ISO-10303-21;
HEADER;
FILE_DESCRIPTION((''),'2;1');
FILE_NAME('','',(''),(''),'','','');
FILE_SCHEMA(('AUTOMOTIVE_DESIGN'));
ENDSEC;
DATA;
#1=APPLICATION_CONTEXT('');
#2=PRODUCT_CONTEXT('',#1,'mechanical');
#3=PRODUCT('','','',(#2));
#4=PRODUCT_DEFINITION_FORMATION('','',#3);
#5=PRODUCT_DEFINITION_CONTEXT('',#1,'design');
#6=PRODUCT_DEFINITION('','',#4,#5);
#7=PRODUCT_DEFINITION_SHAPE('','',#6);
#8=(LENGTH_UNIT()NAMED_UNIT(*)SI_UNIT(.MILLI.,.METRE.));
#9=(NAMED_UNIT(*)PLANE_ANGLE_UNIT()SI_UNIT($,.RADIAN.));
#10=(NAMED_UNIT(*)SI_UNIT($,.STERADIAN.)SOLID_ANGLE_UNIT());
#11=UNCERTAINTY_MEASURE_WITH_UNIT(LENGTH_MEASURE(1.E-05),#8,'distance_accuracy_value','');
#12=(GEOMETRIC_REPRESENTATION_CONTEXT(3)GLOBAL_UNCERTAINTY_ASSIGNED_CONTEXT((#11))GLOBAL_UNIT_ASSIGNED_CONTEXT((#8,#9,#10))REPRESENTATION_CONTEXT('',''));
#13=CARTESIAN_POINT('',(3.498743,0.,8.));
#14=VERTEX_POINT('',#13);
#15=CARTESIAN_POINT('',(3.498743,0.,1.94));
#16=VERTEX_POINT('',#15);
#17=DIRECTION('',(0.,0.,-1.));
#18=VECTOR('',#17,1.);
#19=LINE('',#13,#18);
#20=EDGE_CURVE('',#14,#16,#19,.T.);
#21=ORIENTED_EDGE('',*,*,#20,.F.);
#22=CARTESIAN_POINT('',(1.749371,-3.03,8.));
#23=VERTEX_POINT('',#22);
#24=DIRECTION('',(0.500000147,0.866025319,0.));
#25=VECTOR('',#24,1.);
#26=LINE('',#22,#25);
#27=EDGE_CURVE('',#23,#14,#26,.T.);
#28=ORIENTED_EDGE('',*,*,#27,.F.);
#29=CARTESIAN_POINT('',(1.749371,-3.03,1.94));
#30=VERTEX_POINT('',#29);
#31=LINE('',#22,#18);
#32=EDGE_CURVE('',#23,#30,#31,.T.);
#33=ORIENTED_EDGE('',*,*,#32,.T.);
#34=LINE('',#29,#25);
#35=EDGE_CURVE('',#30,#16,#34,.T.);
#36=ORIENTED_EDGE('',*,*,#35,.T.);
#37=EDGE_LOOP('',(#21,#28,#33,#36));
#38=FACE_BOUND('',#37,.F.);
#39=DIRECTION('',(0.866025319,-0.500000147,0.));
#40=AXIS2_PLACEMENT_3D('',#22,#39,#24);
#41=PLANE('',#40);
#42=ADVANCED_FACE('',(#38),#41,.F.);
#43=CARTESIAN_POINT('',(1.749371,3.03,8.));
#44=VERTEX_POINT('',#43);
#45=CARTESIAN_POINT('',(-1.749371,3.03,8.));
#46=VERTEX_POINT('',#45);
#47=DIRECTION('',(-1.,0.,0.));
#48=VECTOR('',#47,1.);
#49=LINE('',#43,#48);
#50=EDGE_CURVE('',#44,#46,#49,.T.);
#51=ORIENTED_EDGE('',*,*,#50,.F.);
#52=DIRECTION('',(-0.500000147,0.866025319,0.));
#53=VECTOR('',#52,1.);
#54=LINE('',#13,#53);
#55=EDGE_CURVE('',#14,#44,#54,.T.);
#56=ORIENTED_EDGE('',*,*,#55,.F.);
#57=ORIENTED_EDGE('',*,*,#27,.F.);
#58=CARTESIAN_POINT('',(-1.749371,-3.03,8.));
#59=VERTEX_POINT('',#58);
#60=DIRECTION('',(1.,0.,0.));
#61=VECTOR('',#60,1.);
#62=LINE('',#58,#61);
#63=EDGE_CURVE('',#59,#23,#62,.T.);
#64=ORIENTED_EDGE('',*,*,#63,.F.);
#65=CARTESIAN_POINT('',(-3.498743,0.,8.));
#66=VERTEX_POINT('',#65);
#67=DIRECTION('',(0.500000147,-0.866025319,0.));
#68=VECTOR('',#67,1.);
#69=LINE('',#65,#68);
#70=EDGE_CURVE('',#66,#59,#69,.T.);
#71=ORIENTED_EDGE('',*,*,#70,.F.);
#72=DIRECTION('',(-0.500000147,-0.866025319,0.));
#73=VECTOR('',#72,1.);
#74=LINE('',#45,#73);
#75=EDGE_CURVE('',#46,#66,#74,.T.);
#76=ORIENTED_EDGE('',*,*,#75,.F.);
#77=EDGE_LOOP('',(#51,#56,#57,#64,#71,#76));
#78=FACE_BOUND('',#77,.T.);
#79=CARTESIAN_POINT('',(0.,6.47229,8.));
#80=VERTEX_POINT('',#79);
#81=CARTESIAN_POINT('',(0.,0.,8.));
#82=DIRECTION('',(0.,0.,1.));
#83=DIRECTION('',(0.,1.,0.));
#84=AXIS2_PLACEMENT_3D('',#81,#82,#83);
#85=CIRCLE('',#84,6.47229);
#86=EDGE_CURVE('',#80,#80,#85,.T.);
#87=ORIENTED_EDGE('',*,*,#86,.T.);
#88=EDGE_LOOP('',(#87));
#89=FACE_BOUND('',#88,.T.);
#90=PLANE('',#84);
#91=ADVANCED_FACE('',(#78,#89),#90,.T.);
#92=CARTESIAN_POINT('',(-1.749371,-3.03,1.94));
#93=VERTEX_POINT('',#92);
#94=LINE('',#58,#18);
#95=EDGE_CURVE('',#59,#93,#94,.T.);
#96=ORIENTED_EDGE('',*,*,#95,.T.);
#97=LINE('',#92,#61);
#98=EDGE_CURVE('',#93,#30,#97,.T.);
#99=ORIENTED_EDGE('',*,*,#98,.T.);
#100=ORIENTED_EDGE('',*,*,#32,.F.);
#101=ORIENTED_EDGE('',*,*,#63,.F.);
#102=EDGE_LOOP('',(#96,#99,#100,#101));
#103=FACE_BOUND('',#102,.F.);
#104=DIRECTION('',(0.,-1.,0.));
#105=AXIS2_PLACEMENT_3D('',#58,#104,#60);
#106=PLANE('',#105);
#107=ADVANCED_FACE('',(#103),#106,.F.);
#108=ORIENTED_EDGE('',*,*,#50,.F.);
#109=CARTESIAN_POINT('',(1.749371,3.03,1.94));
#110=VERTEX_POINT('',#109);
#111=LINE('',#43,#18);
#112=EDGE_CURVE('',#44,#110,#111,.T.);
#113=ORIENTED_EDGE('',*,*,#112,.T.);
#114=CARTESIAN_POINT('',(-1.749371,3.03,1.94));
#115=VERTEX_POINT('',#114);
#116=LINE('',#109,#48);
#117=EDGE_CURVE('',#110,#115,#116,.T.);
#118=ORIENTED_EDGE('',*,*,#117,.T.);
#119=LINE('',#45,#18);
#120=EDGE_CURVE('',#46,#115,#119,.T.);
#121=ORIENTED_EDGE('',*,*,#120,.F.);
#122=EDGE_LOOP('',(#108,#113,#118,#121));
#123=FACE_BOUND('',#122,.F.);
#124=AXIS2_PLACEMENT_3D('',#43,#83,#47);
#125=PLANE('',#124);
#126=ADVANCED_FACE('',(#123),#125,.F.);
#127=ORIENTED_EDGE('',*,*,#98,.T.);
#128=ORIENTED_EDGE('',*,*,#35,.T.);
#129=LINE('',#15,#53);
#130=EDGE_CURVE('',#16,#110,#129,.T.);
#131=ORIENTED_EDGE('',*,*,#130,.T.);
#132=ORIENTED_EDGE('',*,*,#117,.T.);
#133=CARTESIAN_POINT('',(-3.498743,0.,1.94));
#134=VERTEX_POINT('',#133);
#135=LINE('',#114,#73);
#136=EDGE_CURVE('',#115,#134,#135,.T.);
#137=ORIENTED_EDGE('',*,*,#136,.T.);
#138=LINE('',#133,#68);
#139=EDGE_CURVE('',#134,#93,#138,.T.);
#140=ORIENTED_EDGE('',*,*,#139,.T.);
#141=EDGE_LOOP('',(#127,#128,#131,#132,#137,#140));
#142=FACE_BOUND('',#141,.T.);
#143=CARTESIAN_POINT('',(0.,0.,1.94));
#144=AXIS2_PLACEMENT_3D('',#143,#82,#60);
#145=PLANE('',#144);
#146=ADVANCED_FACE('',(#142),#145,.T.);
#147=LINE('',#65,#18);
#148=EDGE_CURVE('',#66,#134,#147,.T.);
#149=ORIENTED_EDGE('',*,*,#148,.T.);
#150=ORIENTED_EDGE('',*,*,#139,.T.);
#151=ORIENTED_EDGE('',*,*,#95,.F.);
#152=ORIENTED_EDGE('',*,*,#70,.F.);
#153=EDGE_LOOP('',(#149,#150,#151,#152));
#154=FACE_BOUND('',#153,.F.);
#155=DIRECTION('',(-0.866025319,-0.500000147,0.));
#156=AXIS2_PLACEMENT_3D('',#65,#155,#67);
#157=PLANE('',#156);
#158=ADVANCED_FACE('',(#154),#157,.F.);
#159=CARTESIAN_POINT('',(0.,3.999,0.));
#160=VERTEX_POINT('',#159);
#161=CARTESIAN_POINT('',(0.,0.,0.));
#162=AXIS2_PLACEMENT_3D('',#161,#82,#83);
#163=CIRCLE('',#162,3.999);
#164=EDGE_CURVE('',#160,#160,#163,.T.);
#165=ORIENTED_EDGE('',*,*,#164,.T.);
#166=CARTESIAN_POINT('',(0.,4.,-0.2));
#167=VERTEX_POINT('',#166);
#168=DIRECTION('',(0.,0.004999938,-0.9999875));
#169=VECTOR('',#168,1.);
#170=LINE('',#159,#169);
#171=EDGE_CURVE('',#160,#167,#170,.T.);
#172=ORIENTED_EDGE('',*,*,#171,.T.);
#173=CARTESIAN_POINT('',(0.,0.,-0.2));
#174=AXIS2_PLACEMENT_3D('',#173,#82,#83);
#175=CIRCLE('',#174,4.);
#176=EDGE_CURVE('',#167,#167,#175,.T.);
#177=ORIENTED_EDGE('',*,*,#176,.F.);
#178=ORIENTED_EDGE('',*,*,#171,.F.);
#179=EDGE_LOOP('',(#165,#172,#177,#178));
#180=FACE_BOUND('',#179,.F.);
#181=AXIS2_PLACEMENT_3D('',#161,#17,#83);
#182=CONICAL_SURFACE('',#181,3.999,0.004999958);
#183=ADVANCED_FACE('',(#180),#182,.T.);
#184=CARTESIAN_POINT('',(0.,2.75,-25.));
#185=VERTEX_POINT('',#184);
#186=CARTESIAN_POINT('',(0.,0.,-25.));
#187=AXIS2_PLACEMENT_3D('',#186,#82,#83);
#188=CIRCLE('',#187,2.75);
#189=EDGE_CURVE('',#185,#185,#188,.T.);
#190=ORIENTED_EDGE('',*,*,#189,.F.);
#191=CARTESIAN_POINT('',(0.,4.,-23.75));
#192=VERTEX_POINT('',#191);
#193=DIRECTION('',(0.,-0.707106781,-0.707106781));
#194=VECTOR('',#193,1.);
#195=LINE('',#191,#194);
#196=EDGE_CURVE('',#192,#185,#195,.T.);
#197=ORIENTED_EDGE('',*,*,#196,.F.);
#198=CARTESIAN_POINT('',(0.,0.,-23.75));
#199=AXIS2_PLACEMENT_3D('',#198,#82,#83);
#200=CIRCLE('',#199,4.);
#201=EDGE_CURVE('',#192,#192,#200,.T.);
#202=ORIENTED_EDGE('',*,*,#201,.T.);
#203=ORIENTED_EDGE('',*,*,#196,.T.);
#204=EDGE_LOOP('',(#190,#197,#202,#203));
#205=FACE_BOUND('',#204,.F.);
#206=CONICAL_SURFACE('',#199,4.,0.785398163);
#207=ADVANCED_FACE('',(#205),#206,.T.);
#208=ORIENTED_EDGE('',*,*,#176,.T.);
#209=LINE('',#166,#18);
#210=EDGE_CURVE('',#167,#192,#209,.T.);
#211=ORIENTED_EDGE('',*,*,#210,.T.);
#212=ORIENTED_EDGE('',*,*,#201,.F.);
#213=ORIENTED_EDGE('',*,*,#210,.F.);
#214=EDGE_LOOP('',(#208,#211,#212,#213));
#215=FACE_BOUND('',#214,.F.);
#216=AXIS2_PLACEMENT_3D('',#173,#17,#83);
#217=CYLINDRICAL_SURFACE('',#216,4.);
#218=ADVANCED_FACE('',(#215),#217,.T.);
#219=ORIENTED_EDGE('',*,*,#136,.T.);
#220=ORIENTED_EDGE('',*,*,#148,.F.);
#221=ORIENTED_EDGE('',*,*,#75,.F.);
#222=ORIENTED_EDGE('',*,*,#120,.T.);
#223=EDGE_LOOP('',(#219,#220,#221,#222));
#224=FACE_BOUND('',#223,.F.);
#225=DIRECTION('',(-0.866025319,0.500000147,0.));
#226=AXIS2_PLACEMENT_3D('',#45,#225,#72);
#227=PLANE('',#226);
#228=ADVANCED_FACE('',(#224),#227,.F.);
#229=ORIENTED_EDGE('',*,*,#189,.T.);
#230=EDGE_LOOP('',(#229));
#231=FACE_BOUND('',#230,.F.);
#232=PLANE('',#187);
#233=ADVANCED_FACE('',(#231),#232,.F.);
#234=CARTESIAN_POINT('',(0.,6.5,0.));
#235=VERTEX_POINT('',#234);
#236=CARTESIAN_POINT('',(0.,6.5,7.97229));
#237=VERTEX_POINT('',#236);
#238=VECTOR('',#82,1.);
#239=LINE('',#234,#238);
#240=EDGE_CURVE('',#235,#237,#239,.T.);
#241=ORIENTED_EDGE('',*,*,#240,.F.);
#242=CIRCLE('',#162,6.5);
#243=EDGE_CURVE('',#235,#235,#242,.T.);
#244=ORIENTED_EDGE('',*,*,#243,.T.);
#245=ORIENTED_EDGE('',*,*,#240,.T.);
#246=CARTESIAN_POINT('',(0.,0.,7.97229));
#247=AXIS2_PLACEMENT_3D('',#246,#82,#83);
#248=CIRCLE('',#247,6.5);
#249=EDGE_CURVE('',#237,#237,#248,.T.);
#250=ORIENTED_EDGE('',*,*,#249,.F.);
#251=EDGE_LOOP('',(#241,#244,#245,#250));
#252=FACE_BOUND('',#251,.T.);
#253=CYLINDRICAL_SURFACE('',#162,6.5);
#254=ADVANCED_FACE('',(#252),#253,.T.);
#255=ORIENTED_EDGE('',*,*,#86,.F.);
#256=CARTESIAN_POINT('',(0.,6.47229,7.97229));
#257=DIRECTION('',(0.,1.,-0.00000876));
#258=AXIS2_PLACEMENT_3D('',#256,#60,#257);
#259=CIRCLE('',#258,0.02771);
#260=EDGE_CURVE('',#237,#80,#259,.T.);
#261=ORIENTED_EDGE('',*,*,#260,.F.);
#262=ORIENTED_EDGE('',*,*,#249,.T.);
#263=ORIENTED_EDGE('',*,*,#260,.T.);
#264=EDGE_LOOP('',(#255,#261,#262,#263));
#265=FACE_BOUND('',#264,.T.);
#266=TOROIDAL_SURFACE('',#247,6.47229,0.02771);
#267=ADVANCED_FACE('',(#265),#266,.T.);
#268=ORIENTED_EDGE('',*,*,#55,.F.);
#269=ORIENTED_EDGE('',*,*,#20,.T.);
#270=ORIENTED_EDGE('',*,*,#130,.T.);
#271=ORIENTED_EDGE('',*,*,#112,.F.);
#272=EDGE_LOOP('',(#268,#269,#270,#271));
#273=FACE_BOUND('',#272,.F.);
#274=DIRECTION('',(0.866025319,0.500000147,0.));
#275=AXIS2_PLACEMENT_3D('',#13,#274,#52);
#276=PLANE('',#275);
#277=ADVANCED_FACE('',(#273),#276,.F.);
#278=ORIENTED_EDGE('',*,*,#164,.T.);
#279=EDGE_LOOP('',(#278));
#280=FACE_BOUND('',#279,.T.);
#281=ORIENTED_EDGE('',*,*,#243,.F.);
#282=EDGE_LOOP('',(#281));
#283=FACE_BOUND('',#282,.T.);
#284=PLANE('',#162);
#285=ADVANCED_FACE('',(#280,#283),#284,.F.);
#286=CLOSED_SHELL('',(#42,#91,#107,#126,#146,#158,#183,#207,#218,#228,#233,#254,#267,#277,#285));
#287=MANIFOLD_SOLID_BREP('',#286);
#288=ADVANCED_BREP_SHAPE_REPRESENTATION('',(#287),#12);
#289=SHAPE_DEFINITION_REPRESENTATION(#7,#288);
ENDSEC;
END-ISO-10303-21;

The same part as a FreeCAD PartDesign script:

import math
import FreeCAD as App
import Part
import Sketcher
from FreeCAD import Vector
Q = App.Units.Quantity


def add_polygon(sketch, points):
    """Adds a closed chain of lines whose ends are joined by coincident constraints."""
    first, n = sketch.GeometryCount, len(points)
    for a, b in zip(points, points[1:] + points[:1]):
        sketch.addGeometry(Part.LineSegment(App.Vector(*a, 0), App.Vector(*b, 0)), False)
    for i in range(n):
        sketch.addConstraint(Sketcher.Constraint("Coincident", first + i, 2, first + (i + 1) % n, 1))

doc = App.newDocument("Part")
body = doc.addObject("PartDesign::Body", "Body")

sketch1 = body.newObject("Sketcher::SketchObject", "Sketch")
sketch1.AttachmentSupport = (doc.getObject("YZ_Plane"), [""])
sketch1.MapMode = "FlatFace"
sketch1.addGeometry([
    Part.LineSegment(Vector(3.999, 0, 0), Vector(6.5, 0, 0)),
    Part.LineSegment(Vector(6.5, 0, 0), Vector(6.5, 7.972, 0)),
    Part.ArcOfCircle(Part.Circle(Vector(6.472, 7.972, 0), Vector(0, 0, 1), 0.028), math.radians(0), math.radians(90)),
    Part.LineSegment(Vector(6.472, 8, 0), Vector(0, 8, 0)),
    Part.LineSegment(Vector(0, 8, 0), Vector(0, -25, 0)),
    Part.LineSegment(Vector(0, -25, 0), Vector(2.75, -25, 0)),
    Part.LineSegment(Vector(2.75, -25, 0), Vector(4, -23.75, 0)),
    Part.LineSegment(Vector(4, -23.75, 0), Vector(4, -0.2, 0)),
    Part.LineSegment(Vector(4, -0.2, 0), Vector(3.999, 0, 0)),
], False)
sketch1.addConstraint([
    Sketcher.Constraint("Coincident", 0, 2, 1, 1),
    Sketcher.Constraint("Coincident", 1, 2, 2, 1),
    Sketcher.Constraint("Coincident", 2, 2, 3, 1),
    Sketcher.Constraint("Coincident", 3, 2, 4, 1),
    Sketcher.Constraint("Coincident", 4, 2, 5, 1),
    Sketcher.Constraint("Coincident", 5, 2, 6, 1),
    Sketcher.Constraint("Coincident", 6, 2, 7, 1),
    Sketcher.Constraint("Coincident", 7, 2, 8, 1),
    Sketcher.Constraint("Coincident", 8, 2, 0, 1),
    Sketcher.Constraint("Horizontal", 0),
    Sketcher.Constraint("Vertical", 1),
    Sketcher.Constraint("Horizontal", 3),
    Sketcher.Constraint("Vertical", 4),
    Sketcher.Constraint("Horizontal", 5),
    Sketcher.Constraint("Vertical", 7),
    Sketcher.Constraint("PointOnObject", 0, 2, -1),
    Sketcher.Constraint("PointOnObject", 3, 2, -2),
    Sketcher.Constraint("Horizontal", 2, 3, 1, 2),
    Sketcher.Constraint("DistanceY", 4, 2, 4, 1, 33.0),
    Sketcher.Constraint("Angle", 6, Q("45 deg")),
    Sketcher.Constraint("DistanceY", -1, 1, 2, 2, 8.0),
    Sketcher.Constraint("DistanceX", -1, 1, 6, 2, 4.0),
    Sketcher.Constraint("DistanceX", 5, 1, 5, 2, 2.75),
    Sketcher.Constraint("DistanceY", 7, 1, 7, 2, 23.55),
    Sketcher.Constraint("DistanceX", -1, 1, 0, 2, 6.5),
    Sketcher.Constraint("DistanceX", 0, 1, 0, 2, 2.501),
    Sketcher.Constraint("Radius", 2, 0.02771),
    Sketcher.Constraint("DistanceX", 3, 2, 3, 1, 6.47229),
])
revolution = body.newObject("PartDesign::Revolution", "Revolution")
revolution.Profile = sketch1
revolution.ReferenceAxis = (sketch1, ["V_Axis"])
revolution.Angle = 360

sketch2 = body.newObject("Sketcher::SketchObject", "Sketch001")
sketch2.AttachmentSupport = (doc.getObject("XY_Plane"), [""])
sketch2.MapMode = "FlatFace"
sketch2.AttachmentOffset = App.Placement(Vector(0, 0, 8), App.Rotation())
add_polygon(sketch2, [(3.5, 0), (1.7, 3), (-1.7, 3), (-3.5, 0), (-1.7, -3), (1.7, -3)])
sketch2.addConstraint([
    Sketcher.Constraint("Horizontal", 1),
    Sketcher.Constraint("Horizontal", 4),
    Sketcher.Constraint("Symmetric", 0, 2, 3, 2, -1, 1),
    Sketcher.Constraint("Symmetric", 2, 2, 5, 2, -1, 1),
    Sketcher.Constraint("PointOnObject", 2, 2, -1),
    Sketcher.Constraint("Parallel", 2, 5),
    Sketcher.Constraint("Vertical", 1, 2, 3, 2),
    Sketcher.Constraint("Angle", 0, Q("120.00001 deg")),
    Sketcher.Constraint("DistanceY", -1, 1, 0, 2, 3.03),
    Sketcher.Constraint("DistanceX", 1, 2, 1, 1, 3.498742),
])
pocket1 = body.newObject("PartDesign::Pocket", "Pocket")
pocket1.Profile = sketch2
pocket1.Length = 6.06

doc.recompute()
